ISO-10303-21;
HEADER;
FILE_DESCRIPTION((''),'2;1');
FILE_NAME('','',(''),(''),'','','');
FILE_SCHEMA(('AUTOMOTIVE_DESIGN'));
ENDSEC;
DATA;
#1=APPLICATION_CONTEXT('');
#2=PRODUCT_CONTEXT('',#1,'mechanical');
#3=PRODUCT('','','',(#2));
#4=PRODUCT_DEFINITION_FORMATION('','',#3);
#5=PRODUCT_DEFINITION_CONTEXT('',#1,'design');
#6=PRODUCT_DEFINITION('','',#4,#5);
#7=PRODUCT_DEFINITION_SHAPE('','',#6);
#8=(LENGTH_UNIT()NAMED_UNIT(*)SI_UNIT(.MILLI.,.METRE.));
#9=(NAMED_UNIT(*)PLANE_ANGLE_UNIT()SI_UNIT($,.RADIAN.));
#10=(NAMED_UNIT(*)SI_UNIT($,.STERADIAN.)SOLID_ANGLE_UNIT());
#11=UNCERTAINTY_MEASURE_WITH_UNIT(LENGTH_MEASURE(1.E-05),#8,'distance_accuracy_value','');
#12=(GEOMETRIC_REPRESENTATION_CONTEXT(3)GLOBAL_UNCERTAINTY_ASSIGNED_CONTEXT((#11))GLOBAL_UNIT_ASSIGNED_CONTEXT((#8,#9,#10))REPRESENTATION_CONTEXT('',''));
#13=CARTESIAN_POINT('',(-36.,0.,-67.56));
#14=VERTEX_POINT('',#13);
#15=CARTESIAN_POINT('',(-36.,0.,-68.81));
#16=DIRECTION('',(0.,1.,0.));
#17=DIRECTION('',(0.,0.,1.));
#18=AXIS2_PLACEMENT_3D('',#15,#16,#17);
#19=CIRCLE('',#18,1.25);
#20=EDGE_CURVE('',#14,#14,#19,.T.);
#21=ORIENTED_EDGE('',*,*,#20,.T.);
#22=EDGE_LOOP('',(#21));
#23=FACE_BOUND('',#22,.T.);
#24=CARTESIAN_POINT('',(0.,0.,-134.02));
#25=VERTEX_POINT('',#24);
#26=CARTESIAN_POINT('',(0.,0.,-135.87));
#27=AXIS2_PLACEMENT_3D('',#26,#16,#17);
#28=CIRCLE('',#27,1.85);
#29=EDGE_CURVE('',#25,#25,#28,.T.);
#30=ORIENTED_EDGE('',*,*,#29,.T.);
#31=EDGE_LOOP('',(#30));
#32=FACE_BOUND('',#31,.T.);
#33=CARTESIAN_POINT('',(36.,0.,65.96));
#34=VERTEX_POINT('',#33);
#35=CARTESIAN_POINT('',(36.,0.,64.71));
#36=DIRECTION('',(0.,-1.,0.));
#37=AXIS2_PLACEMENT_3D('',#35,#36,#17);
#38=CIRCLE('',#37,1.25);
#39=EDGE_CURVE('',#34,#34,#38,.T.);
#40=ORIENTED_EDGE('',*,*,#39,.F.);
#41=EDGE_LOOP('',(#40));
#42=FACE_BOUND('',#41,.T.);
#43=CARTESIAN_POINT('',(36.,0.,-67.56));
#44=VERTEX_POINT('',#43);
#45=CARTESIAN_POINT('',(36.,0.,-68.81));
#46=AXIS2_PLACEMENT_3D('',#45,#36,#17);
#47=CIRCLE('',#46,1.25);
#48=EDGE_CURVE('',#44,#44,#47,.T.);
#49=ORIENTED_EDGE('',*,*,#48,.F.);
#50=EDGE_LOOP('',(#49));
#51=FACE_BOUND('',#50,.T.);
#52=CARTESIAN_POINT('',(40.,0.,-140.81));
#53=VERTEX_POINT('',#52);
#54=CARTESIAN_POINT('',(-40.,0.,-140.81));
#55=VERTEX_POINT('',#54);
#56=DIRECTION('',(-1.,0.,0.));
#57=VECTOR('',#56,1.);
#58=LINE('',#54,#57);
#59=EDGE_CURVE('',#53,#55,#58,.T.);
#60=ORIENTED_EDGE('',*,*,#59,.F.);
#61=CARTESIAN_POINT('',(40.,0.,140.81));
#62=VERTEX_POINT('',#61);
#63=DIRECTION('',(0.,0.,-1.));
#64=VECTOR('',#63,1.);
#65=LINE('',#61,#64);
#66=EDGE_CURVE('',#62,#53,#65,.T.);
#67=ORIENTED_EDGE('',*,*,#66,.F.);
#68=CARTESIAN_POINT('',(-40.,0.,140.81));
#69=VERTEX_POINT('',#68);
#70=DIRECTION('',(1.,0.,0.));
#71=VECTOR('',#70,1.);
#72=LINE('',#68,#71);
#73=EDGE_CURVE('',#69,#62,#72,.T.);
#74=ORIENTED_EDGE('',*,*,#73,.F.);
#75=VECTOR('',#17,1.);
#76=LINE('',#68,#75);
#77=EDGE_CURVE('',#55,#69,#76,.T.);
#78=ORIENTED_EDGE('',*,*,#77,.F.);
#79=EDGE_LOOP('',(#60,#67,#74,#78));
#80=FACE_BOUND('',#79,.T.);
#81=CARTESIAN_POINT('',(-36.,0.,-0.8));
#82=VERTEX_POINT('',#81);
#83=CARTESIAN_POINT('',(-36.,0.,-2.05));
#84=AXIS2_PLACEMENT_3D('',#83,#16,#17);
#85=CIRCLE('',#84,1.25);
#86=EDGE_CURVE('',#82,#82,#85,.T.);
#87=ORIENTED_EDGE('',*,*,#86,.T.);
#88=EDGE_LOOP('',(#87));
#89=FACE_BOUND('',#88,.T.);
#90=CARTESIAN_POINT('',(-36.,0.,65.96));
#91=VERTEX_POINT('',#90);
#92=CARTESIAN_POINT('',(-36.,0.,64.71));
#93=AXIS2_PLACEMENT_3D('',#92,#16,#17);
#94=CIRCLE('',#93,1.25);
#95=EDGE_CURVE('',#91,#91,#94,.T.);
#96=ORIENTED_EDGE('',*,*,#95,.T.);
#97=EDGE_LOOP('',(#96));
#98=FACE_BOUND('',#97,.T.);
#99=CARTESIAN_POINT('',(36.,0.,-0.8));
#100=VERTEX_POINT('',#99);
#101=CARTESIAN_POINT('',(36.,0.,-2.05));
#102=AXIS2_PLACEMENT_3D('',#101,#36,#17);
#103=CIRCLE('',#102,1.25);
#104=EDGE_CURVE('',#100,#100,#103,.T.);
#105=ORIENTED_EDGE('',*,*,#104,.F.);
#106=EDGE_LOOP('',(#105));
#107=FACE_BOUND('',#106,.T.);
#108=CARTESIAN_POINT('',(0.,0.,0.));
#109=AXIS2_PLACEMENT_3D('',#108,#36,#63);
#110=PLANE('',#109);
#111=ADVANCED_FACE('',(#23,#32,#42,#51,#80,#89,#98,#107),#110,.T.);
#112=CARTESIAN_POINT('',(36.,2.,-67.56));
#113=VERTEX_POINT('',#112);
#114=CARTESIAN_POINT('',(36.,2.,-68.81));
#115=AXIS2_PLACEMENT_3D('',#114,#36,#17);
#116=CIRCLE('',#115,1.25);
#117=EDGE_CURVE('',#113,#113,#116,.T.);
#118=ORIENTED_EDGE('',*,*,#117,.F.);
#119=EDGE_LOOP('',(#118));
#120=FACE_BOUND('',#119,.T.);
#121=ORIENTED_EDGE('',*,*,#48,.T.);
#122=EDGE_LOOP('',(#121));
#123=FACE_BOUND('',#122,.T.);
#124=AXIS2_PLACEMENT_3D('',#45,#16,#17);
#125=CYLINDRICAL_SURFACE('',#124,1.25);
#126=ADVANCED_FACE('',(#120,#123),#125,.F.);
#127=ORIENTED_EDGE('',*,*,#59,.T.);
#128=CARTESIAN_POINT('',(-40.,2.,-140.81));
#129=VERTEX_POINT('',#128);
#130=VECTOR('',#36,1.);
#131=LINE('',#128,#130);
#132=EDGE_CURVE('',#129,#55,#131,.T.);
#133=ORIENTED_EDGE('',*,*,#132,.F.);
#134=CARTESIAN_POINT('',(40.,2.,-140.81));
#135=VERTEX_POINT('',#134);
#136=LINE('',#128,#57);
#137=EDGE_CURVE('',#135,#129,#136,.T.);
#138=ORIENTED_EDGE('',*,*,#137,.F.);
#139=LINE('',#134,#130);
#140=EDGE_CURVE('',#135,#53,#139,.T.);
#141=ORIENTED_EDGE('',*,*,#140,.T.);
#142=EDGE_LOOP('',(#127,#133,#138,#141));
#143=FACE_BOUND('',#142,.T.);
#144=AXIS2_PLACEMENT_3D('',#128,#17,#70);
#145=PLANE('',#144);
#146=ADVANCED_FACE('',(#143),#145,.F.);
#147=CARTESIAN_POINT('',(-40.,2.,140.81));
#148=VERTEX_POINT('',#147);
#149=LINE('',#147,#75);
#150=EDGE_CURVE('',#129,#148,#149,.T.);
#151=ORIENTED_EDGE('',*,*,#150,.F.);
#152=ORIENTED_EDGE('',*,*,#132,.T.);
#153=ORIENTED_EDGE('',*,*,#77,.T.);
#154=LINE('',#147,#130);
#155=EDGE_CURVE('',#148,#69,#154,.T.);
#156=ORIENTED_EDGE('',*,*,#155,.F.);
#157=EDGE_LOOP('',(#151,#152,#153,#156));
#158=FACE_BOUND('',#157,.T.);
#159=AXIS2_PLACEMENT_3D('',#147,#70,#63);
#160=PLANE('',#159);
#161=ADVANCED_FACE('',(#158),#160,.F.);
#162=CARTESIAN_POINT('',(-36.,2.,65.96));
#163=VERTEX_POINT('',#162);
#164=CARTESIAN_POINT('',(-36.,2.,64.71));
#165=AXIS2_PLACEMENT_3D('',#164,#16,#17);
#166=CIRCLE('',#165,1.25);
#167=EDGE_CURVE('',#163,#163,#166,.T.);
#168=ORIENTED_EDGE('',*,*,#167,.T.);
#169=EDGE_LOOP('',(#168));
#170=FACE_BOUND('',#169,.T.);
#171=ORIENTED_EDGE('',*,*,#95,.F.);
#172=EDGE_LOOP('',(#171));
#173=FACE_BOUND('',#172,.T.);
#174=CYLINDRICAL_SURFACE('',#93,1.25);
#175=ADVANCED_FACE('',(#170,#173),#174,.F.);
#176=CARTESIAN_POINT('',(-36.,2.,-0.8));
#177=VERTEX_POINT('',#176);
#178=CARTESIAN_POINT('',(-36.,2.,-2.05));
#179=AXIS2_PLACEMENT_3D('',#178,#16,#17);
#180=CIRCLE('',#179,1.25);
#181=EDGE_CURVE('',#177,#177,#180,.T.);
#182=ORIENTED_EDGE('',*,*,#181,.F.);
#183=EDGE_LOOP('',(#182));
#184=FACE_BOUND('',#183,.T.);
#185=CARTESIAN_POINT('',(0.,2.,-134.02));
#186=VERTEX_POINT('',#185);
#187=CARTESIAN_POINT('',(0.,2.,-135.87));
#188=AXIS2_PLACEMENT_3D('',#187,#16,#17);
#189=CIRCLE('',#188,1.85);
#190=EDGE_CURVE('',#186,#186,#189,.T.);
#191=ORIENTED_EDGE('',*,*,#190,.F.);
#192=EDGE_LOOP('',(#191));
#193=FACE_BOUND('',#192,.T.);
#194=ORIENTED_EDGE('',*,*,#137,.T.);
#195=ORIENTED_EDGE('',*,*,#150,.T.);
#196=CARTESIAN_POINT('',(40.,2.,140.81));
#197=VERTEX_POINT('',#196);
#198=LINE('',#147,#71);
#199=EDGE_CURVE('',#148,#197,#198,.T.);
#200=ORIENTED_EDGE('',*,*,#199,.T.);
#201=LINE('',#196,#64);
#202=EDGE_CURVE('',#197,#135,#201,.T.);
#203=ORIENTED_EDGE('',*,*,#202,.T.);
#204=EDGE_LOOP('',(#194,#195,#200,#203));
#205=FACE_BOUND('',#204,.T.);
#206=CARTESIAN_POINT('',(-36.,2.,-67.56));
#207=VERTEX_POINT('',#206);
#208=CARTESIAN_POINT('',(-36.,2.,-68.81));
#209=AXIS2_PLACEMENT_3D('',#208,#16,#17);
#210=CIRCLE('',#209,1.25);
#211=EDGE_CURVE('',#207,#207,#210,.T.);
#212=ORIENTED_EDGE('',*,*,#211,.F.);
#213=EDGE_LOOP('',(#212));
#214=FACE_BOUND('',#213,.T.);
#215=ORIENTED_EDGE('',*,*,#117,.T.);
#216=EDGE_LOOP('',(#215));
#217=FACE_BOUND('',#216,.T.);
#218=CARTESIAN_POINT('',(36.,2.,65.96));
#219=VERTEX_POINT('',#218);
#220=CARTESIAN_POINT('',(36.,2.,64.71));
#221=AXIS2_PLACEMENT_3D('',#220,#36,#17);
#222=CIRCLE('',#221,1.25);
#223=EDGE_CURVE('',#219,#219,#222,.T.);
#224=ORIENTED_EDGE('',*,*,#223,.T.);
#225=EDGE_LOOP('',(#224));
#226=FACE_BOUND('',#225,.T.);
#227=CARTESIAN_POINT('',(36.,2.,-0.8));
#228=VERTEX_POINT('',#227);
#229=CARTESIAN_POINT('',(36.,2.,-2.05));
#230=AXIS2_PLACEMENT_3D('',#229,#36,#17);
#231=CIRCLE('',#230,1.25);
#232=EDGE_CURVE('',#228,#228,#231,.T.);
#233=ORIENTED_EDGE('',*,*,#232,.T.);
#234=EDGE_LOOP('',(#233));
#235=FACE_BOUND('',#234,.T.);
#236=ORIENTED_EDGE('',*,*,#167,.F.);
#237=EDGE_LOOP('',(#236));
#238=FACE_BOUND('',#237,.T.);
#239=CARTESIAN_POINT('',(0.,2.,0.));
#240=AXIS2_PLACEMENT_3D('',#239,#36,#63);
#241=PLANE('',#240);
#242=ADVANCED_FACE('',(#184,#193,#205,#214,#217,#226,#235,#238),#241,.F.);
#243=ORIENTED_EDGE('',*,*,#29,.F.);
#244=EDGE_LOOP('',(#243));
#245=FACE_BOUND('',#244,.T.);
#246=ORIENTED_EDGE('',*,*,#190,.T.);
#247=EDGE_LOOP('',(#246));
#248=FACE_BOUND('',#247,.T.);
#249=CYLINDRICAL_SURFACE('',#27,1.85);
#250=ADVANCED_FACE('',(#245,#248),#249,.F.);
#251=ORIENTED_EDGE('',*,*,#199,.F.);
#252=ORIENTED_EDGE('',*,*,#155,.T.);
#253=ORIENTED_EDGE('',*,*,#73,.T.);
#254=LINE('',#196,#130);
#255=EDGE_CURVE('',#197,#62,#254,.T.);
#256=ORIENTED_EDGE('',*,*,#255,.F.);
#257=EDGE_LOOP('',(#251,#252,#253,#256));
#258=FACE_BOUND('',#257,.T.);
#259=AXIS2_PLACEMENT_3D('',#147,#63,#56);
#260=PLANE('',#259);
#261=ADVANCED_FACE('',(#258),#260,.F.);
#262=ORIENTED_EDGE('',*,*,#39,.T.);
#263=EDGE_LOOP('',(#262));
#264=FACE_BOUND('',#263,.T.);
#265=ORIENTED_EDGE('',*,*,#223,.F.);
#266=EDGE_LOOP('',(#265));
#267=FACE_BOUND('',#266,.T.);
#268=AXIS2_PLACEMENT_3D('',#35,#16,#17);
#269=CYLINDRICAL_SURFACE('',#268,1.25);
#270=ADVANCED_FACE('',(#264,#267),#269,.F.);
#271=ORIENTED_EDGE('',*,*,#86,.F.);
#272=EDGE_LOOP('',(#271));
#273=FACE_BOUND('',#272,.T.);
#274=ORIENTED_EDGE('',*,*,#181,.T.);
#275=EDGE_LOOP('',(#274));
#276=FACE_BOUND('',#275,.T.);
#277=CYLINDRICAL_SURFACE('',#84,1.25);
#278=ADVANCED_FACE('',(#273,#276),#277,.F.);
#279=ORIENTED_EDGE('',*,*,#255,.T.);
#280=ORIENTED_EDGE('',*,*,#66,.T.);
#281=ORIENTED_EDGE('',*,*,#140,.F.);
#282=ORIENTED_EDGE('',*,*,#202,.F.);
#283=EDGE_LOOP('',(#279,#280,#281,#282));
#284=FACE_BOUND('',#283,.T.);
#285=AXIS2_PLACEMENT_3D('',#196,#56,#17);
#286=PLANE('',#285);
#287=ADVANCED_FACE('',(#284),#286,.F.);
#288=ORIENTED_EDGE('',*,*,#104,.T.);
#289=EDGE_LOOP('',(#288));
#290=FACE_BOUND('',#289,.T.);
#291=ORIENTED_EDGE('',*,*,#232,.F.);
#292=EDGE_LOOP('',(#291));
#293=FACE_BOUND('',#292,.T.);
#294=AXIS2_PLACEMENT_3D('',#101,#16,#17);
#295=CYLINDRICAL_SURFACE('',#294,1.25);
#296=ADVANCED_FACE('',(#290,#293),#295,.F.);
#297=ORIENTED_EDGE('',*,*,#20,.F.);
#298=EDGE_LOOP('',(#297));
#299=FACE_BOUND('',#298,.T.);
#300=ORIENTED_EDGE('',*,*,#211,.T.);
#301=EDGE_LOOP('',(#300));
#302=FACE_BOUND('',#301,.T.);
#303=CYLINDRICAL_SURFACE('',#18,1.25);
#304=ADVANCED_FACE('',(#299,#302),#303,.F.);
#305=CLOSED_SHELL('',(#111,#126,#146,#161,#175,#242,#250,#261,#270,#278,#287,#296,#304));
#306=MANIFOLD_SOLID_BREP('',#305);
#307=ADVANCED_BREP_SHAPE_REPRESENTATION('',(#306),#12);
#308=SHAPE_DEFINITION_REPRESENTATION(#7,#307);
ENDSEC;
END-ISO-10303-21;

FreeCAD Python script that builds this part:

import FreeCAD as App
import Part
import Sketcher
Q = App.Units.Quantity


def add_polygon(sketch, points):
    """Adds a closed chain of lines whose ends are joined by coincident constraints."""
    first, n = sketch.GeometryCount, len(points)
    for a, b in zip(points, points[1:] + points[:1]):
        sketch.addGeometry(Part.LineSegment(App.Vector(*a, 0), App.Vector(*b, 0)), False)
    for i in range(n):
        sketch.addConstraint(Sketcher.Constraint("Coincident", first + i, 2, first + (i + 1) % n, 1))

doc = App.newDocument("Part")
body = doc.addObject("PartDesign::Body", "Body")

sketch1 = body.newObject("Sketcher::SketchObject", "Sketch")
sketch1.AttachmentSupport = (doc.getObject("XZ_Plane"), [""])
sketch1.MapMode = "FlatFace"
add_polygon(sketch1, [(-40, -141), (-40, 141), (40, 141), (40, -141)])
sketch1.addConstraint([
    Sketcher.Constraint("Vertical", 0),
    Sketcher.Constraint("Horizontal", 1),
    Sketcher.Constraint("Vertical", 2),
    Sketcher.Constraint("Horizontal", 3),
    Sketcher.Constraint("Symmetric", 0, 2, 2, 2, -1, 1),
    Sketcher.Constraint("DistanceX", 1, 1, 1, 2, Q("80 mm")),
    Sketcher.Constraint("DistanceY", 0, 1, 0, 2, Q("281.62 mm")),
])
pad1 = body.newObject("PartDesign::Pad", "Pad")
pad1.Profile = sketch1
pad1.Length = 2
pad1.Reversed = True

sketch2 = body.newObject("Sketcher::SketchObject", "Sketch001")
sketch2.AttachmentSupport = (doc.getObject("XZ_Plane"), [""])
sketch2.MapMode = "FlatFace"
sketch2.AttachmentOffset = App.Placement(App.Vector(0, 0, -2), App.Rotation())
sketch2.addGeometry(Part.Circle(App.Vector(0, -135.9, 0), App.Vector(0, 0, 1), 1.9), False)
sketch2.addConstraint([
    Sketcher.Constraint("PointOnObject", 0, 3, -2),
    Sketcher.Constraint("Diameter", 0, Q("3.7 mm")),
    Sketcher.Constraint("DistanceY", 0, 3, -1, 1, Q("135.87 mm")),
])
pocket1 = body.newObject("PartDesign::Pocket", "Pocket")
pocket1.Profile = sketch2
pocket1.Length = 2
pocket1.Reversed = True

sketch3 = body.newObject("Sketcher::SketchObject", "Sketch002")
sketch3.AttachmentSupport = (doc.getObject("XZ_Plane"), [""])
sketch3.MapMode = "FlatFace"
sketch3.AttachmentOffset = App.Placement(App.Vector(0, 0, -2), App.Rotation())
sketch3.addGeometry(Part.Circle(App.Vector(-36, -68.8, 0), App.Vector(0, 0, 1), 1.2), False)
sketch3.addConstraint([
    Sketcher.Constraint("Diameter", 0, Q("2.5 mm")),
    Sketcher.Constraint("DistanceX", 0, 3, -1, 1, Q("36 mm")),
    Sketcher.Constraint("DistanceY", 0, 3, -1, 1, Q("68.81 mm")),
])
pocket2 = body.newObject("PartDesign::Pocket", "Pocket001")
pocket2.Profile = sketch3
pocket2.Length = 2
pocket2.Reversed = True
doc.recompute()

linearpattern = body.newObject("PartDesign::LinearPattern", "LinearPattern")
linearpattern.Originals = [pocket2]
linearpattern.Direction = (doc.getObject("Z_Axis"), [""])
linearpattern.Mode = "offset"
linearpattern.Offset = 66.76
linearpattern.Occurrences = 3
body.Tip = linearpattern
doc.recompute()

mirrored = body.newObject("PartDesign::Mirrored", "Mirrored")
mirrored.Originals = [pocket2]
mirrored.MirrorPlane = (doc.getObject("YZ_Plane"), [""])
body.Tip = mirrored

sketch4 = body.newObject("Sketcher::SketchObject", "Sketch003")
sketch4.AttachmentSupport = (doc.getObject("XZ_Plane"), [""])
sketch4.MapMode = "FlatFace"
sketch4.AttachmentOffset = App.Placement(App.Vector(0, 0, -2), App.Rotation())
sketch4.addGeometry(Part.Circle(App.Vector(36, -2, 0), App.Vector(0, 0, 1), 1.2), False)
sketch4.addConstraint([
    Sketcher.Constraint("Diameter", 0, Q("2.5 mm")),
    Sketcher.Constraint("DistanceX", -1, 1, 0, 3, Q("36 mm")),
    Sketcher.Constraint("DistanceY", 0, 3, -1, 1, Q("2.05 mm")),
])
pocket3 = body.newObject("PartDesign::Pocket", "Pocket002")
pocket3.Profile = sketch4
pocket3.Length = 2
pocket3.Reversed = True

sketch5 = body.newObject("Sketcher::SketchObject", "Sketch004")
sketch5.AttachmentSupport = (doc.getObject("XZ_Plane"), [""])
sketch5.MapMode = "FlatFace"
sketch5.AttachmentOffset = App.Placement(App.Vector(0, 0, -2), App.Rotation())
sketch5.addGeometry(Part.Circle(App.Vector(36, 64.7, 0), App.Vector(0, 0, 1), 1.2), False)
sketch5.addConstraint([
    Sketcher.Constraint("Diameter", 0, Q("2.5 mm")),
    Sketcher.Constraint("DistanceX", -1, 1, 0, 3, Q("36 mm")),
    Sketcher.Constraint("DistanceY", -1, 1, 0, 3, Q("64.71 mm")),
])
pocket4 = body.newObject("PartDesign::Pocket", "Pocket003")
pocket4.Profile = sketch5
pocket4.Length = 2
pocket4.Reversed = True

doc.recompute()
